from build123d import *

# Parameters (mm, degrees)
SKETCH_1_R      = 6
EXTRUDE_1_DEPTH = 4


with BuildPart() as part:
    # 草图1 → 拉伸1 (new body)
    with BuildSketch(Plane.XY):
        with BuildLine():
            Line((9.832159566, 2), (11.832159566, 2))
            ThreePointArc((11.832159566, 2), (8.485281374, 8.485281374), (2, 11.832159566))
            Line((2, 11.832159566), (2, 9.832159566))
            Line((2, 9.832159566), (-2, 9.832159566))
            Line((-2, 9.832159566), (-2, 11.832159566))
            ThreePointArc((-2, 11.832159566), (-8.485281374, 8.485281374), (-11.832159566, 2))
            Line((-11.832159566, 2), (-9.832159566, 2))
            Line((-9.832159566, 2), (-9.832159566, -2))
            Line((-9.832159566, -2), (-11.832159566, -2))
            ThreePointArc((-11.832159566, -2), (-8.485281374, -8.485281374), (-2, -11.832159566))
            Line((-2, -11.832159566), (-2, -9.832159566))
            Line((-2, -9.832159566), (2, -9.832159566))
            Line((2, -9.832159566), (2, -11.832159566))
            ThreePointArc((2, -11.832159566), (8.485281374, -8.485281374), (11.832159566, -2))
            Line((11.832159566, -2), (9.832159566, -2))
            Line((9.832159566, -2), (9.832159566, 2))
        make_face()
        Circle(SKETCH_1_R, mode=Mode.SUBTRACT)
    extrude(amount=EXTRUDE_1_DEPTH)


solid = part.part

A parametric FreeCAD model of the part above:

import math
import FreeCAD as App
import Part
import Sketcher

doc = App.newDocument("Part")
body = doc.addObject("PartDesign::Body", "Body")

# Sketch on XY plane
sketch1 = body.newObject("Sketcher::SketchObject", "Sketch")
sketch1.AttachmentSupport = (doc.getObject("XY_Plane"), [""])
sketch1.MapMode = "FlatFace"
sketch1.addGeometry(Part.LineSegment(App.Vector(9.83216, 2, 0), App.Vector(11.83216, 2, 0)), False)
sketch1.addGeometry(Part.ArcOfCircle(Part.Circle(App.Vector(0, 0, 0), App.Vector(0, 0, 1), 12), math.radians(9.594068), math.radians(80.405932)), False)
sketch1.addGeometry(Part.LineSegment(App.Vector(2, 11.83216, 0), App.Vector(2, 9.83216, 0)), False)
sketch1.addGeometry(Part.LineSegment(App.Vector(2, 9.83216, 0), App.Vector(-2, 9.83216, 0)), False)
sketch1.addGeometry(Part.LineSegment(App.Vector(-2, 9.83216, 0), App.Vector(-2, 11.83216, 0)), False)
sketch1.addGeometry(Part.ArcOfCircle(Part.Circle(App.Vector(0, 0, 0), App.Vector(0, 0, 1), 12), math.radians(99.594068), math.radians(170.405932)), False)
sketch1.addGeometry(Part.LineSegment(App.Vector(-11.83216, 2, 0), App.Vector(-9.83216, 2, 0)), False)
sketch1.addGeometry(Part.LineSegment(App.Vector(-9.83216, 2, 0), App.Vector(-9.83216, -2, 0)), False)
sketch1.addGeometry(Part.LineSegment(App.Vector(-9.83216, -2, 0), App.Vector(-11.83216, -2, 0)), False)
sketch1.addGeometry(Part.ArcOfCircle(Part.Circle(App.Vector(0, 0, 0), App.Vector(0, 0, 1), 12), math.radians(-170.405932), math.radians(-99.594068)), False)
sketch1.addGeometry(Part.LineSegment(App.Vector(-2, -11.83216, 0), App.Vector(-2, -9.83216, 0)), False)
sketch1.addGeometry(Part.LineSegment(App.Vector(-2, -9.83216, 0), App.Vector(2, -9.83216, 0)), False)
sketch1.addGeometry(Part.LineSegment(App.Vector(2, -9.83216, 0), App.Vector(2, -11.83216, 0)), False)
sketch1.addGeometry(Part.ArcOfCircle(Part.Circle(App.Vector(0, 0, 0), App.Vector(0, 0, 1), 12), math.radians(-80.405932), math.radians(-9.594068)), False)
sketch1.addGeometry(Part.LineSegment(App.Vector(11.83216, -2, 0), App.Vector(9.83216, -2, 0)), False)
sketch1.addGeometry(Part.LineSegment(App.Vector(9.83216, -2, 0), App.Vector(9.83216, 2, 0)), False)
sketch1.addGeometry(Part.Circle(App.Vector(0, 0, 0), App.Vector(0, 0, 1), 6), False)
sketch1.addConstraint(Sketcher.Constraint("Coincident", 0, 2, 1, 1))
sketch1.addConstraint(Sketcher.Constraint("Coincident", 1, 2, 2, 1))
sketch1.addConstraint(Sketcher.Constraint("Coincident", 2, 2, 3, 1))
sketch1.addConstraint(Sketcher.Constraint("Coincident", 3, 2, 4, 1))
sketch1.addConstraint(Sketcher.Constraint("Coincident", 4, 2, 5, 1))
sketch1.addConstraint(Sketcher.Constraint("Coincident", 5, 2, 6, 1))
sketch1.addConstraint(Sketcher.Constraint("Coincident", 6, 2, 7, 1))
sketch1.addConstraint(Sketcher.Constraint("Coincident", 7, 2, 8, 1))
sketch1.addConstraint(Sketcher.Constraint("Coincident", 8, 2, 9, 1))
sketch1.addConstraint(Sketcher.Constraint("Coincident", 9, 2, 10, 1))
sketch1.addConstraint(Sketcher.Constraint("Coincident", 10, 2, 11, 1))
sketch1.addConstraint(Sketcher.Constraint("Coincident", 11, 2, 12, 1))
sketch1.addConstraint(Sketcher.Constraint("Coincident", 12, 2, 13, 1))
sketch1.addConstraint(Sketcher.Constraint("Coincident", 13, 2, 14, 1))
sketch1.addConstraint(Sketcher.Constraint("Coincident", 14, 2, 15, 1))
sketch1.addConstraint(Sketcher.Constraint("Coincident", 15, 2, 0, 1))
sketch1.addConstraint(Sketcher.Constraint("Horizontal", 0))
sketch1.addConstraint(Sketcher.Constraint("Vertical", 2))
sketch1.addConstraint(Sketcher.Constraint("Horizontal", 3))
sketch1.addConstraint(Sketcher.Constraint("Vertical", 4))
sketch1.addConstraint(Sketcher.Constraint("Horizontal", 6))
sketch1.addConstraint(Sketcher.Constraint("Vertical", 7))
sketch1.addConstraint(Sketcher.Constraint("Horizontal", 8))
sketch1.addConstraint(Sketcher.Constraint("Vertical", 10))
sketch1.addConstraint(Sketcher.Constraint("Horizontal", 11))
sketch1.addConstraint(Sketcher.Constraint("Vertical", 12))
sketch1.addConstraint(Sketcher.Constraint("Horizontal", 14))
sketch1.addConstraint(Sketcher.Constraint("Vertical", 15))
sketch1.addConstraint(Sketcher.Constraint("Coincident", 1, 3, -1, 1))
sketch1.addConstraint(Sketcher.Constraint("Coincident", 5, 3, -1, 1))
sketch1.addConstraint(Sketcher.Constraint("Coincident", 9, 3, -1, 1))
sketch1.addConstraint(Sketcher.Constraint("Coincident", 13, 3, -1, 1))
sketch1.addConstraint(Sketcher.Constraint("Coincident", 16, 3, -1, 1))
sketch1.addConstraint(Sketcher.Constraint("Equal", 1, 5))
sketch1.addConstraint(Sketcher.Constraint("Equal", 5, 9))
sketch1.addConstraint(Sketcher.Constraint("Equal", 9, 13))
sketch1.addConstraint(Sketcher.Constraint("Symmetric", 2, 2, 10, 2, -1, 1))
sketch1.addConstraint(Sketcher.Constraint("Symmetric", 6, 2, 14, 2, -1, 1))
sketch1.addConstraint(Sketcher.Constraint("Horizontal", 1, 2, 4, 2))
sketch1.addConstraint(Sketcher.Constraint("Horizontal", 0, 2, 5, 2))
sketch1.addConstraint(Sketcher.Constraint("Horizontal", 9, 2, 12, 2))
sketch1.addConstraint(Sketcher.Constraint("Horizontal", 8, 2, 13, 2))
sketch1.addConstraint(Sketcher.Constraint("Equal", 14, 2))
sketch1.addConstraint(Sketcher.Constraint("Equal", 11, 7))
sketch1.addConstraint(Sketcher.Constraint("Diameter", 16, 12.0))
sketch1.addConstraint(Sketcher.Constraint("Radius", 1, 12.0))
sketch1.addConstraint(Sketcher.Constraint("DistanceX", 0, 1, 0, 2, 2.0))
sketch1.addConstraint(Sketcher.Constraint("DistanceX", 3, 2, 3, 1, 4.0))
pad1 = body.newObject("PartDesign::Pad", "Pad")
pad1.Profile = sketch1
pad1.Length = 4

doc.recompute()
